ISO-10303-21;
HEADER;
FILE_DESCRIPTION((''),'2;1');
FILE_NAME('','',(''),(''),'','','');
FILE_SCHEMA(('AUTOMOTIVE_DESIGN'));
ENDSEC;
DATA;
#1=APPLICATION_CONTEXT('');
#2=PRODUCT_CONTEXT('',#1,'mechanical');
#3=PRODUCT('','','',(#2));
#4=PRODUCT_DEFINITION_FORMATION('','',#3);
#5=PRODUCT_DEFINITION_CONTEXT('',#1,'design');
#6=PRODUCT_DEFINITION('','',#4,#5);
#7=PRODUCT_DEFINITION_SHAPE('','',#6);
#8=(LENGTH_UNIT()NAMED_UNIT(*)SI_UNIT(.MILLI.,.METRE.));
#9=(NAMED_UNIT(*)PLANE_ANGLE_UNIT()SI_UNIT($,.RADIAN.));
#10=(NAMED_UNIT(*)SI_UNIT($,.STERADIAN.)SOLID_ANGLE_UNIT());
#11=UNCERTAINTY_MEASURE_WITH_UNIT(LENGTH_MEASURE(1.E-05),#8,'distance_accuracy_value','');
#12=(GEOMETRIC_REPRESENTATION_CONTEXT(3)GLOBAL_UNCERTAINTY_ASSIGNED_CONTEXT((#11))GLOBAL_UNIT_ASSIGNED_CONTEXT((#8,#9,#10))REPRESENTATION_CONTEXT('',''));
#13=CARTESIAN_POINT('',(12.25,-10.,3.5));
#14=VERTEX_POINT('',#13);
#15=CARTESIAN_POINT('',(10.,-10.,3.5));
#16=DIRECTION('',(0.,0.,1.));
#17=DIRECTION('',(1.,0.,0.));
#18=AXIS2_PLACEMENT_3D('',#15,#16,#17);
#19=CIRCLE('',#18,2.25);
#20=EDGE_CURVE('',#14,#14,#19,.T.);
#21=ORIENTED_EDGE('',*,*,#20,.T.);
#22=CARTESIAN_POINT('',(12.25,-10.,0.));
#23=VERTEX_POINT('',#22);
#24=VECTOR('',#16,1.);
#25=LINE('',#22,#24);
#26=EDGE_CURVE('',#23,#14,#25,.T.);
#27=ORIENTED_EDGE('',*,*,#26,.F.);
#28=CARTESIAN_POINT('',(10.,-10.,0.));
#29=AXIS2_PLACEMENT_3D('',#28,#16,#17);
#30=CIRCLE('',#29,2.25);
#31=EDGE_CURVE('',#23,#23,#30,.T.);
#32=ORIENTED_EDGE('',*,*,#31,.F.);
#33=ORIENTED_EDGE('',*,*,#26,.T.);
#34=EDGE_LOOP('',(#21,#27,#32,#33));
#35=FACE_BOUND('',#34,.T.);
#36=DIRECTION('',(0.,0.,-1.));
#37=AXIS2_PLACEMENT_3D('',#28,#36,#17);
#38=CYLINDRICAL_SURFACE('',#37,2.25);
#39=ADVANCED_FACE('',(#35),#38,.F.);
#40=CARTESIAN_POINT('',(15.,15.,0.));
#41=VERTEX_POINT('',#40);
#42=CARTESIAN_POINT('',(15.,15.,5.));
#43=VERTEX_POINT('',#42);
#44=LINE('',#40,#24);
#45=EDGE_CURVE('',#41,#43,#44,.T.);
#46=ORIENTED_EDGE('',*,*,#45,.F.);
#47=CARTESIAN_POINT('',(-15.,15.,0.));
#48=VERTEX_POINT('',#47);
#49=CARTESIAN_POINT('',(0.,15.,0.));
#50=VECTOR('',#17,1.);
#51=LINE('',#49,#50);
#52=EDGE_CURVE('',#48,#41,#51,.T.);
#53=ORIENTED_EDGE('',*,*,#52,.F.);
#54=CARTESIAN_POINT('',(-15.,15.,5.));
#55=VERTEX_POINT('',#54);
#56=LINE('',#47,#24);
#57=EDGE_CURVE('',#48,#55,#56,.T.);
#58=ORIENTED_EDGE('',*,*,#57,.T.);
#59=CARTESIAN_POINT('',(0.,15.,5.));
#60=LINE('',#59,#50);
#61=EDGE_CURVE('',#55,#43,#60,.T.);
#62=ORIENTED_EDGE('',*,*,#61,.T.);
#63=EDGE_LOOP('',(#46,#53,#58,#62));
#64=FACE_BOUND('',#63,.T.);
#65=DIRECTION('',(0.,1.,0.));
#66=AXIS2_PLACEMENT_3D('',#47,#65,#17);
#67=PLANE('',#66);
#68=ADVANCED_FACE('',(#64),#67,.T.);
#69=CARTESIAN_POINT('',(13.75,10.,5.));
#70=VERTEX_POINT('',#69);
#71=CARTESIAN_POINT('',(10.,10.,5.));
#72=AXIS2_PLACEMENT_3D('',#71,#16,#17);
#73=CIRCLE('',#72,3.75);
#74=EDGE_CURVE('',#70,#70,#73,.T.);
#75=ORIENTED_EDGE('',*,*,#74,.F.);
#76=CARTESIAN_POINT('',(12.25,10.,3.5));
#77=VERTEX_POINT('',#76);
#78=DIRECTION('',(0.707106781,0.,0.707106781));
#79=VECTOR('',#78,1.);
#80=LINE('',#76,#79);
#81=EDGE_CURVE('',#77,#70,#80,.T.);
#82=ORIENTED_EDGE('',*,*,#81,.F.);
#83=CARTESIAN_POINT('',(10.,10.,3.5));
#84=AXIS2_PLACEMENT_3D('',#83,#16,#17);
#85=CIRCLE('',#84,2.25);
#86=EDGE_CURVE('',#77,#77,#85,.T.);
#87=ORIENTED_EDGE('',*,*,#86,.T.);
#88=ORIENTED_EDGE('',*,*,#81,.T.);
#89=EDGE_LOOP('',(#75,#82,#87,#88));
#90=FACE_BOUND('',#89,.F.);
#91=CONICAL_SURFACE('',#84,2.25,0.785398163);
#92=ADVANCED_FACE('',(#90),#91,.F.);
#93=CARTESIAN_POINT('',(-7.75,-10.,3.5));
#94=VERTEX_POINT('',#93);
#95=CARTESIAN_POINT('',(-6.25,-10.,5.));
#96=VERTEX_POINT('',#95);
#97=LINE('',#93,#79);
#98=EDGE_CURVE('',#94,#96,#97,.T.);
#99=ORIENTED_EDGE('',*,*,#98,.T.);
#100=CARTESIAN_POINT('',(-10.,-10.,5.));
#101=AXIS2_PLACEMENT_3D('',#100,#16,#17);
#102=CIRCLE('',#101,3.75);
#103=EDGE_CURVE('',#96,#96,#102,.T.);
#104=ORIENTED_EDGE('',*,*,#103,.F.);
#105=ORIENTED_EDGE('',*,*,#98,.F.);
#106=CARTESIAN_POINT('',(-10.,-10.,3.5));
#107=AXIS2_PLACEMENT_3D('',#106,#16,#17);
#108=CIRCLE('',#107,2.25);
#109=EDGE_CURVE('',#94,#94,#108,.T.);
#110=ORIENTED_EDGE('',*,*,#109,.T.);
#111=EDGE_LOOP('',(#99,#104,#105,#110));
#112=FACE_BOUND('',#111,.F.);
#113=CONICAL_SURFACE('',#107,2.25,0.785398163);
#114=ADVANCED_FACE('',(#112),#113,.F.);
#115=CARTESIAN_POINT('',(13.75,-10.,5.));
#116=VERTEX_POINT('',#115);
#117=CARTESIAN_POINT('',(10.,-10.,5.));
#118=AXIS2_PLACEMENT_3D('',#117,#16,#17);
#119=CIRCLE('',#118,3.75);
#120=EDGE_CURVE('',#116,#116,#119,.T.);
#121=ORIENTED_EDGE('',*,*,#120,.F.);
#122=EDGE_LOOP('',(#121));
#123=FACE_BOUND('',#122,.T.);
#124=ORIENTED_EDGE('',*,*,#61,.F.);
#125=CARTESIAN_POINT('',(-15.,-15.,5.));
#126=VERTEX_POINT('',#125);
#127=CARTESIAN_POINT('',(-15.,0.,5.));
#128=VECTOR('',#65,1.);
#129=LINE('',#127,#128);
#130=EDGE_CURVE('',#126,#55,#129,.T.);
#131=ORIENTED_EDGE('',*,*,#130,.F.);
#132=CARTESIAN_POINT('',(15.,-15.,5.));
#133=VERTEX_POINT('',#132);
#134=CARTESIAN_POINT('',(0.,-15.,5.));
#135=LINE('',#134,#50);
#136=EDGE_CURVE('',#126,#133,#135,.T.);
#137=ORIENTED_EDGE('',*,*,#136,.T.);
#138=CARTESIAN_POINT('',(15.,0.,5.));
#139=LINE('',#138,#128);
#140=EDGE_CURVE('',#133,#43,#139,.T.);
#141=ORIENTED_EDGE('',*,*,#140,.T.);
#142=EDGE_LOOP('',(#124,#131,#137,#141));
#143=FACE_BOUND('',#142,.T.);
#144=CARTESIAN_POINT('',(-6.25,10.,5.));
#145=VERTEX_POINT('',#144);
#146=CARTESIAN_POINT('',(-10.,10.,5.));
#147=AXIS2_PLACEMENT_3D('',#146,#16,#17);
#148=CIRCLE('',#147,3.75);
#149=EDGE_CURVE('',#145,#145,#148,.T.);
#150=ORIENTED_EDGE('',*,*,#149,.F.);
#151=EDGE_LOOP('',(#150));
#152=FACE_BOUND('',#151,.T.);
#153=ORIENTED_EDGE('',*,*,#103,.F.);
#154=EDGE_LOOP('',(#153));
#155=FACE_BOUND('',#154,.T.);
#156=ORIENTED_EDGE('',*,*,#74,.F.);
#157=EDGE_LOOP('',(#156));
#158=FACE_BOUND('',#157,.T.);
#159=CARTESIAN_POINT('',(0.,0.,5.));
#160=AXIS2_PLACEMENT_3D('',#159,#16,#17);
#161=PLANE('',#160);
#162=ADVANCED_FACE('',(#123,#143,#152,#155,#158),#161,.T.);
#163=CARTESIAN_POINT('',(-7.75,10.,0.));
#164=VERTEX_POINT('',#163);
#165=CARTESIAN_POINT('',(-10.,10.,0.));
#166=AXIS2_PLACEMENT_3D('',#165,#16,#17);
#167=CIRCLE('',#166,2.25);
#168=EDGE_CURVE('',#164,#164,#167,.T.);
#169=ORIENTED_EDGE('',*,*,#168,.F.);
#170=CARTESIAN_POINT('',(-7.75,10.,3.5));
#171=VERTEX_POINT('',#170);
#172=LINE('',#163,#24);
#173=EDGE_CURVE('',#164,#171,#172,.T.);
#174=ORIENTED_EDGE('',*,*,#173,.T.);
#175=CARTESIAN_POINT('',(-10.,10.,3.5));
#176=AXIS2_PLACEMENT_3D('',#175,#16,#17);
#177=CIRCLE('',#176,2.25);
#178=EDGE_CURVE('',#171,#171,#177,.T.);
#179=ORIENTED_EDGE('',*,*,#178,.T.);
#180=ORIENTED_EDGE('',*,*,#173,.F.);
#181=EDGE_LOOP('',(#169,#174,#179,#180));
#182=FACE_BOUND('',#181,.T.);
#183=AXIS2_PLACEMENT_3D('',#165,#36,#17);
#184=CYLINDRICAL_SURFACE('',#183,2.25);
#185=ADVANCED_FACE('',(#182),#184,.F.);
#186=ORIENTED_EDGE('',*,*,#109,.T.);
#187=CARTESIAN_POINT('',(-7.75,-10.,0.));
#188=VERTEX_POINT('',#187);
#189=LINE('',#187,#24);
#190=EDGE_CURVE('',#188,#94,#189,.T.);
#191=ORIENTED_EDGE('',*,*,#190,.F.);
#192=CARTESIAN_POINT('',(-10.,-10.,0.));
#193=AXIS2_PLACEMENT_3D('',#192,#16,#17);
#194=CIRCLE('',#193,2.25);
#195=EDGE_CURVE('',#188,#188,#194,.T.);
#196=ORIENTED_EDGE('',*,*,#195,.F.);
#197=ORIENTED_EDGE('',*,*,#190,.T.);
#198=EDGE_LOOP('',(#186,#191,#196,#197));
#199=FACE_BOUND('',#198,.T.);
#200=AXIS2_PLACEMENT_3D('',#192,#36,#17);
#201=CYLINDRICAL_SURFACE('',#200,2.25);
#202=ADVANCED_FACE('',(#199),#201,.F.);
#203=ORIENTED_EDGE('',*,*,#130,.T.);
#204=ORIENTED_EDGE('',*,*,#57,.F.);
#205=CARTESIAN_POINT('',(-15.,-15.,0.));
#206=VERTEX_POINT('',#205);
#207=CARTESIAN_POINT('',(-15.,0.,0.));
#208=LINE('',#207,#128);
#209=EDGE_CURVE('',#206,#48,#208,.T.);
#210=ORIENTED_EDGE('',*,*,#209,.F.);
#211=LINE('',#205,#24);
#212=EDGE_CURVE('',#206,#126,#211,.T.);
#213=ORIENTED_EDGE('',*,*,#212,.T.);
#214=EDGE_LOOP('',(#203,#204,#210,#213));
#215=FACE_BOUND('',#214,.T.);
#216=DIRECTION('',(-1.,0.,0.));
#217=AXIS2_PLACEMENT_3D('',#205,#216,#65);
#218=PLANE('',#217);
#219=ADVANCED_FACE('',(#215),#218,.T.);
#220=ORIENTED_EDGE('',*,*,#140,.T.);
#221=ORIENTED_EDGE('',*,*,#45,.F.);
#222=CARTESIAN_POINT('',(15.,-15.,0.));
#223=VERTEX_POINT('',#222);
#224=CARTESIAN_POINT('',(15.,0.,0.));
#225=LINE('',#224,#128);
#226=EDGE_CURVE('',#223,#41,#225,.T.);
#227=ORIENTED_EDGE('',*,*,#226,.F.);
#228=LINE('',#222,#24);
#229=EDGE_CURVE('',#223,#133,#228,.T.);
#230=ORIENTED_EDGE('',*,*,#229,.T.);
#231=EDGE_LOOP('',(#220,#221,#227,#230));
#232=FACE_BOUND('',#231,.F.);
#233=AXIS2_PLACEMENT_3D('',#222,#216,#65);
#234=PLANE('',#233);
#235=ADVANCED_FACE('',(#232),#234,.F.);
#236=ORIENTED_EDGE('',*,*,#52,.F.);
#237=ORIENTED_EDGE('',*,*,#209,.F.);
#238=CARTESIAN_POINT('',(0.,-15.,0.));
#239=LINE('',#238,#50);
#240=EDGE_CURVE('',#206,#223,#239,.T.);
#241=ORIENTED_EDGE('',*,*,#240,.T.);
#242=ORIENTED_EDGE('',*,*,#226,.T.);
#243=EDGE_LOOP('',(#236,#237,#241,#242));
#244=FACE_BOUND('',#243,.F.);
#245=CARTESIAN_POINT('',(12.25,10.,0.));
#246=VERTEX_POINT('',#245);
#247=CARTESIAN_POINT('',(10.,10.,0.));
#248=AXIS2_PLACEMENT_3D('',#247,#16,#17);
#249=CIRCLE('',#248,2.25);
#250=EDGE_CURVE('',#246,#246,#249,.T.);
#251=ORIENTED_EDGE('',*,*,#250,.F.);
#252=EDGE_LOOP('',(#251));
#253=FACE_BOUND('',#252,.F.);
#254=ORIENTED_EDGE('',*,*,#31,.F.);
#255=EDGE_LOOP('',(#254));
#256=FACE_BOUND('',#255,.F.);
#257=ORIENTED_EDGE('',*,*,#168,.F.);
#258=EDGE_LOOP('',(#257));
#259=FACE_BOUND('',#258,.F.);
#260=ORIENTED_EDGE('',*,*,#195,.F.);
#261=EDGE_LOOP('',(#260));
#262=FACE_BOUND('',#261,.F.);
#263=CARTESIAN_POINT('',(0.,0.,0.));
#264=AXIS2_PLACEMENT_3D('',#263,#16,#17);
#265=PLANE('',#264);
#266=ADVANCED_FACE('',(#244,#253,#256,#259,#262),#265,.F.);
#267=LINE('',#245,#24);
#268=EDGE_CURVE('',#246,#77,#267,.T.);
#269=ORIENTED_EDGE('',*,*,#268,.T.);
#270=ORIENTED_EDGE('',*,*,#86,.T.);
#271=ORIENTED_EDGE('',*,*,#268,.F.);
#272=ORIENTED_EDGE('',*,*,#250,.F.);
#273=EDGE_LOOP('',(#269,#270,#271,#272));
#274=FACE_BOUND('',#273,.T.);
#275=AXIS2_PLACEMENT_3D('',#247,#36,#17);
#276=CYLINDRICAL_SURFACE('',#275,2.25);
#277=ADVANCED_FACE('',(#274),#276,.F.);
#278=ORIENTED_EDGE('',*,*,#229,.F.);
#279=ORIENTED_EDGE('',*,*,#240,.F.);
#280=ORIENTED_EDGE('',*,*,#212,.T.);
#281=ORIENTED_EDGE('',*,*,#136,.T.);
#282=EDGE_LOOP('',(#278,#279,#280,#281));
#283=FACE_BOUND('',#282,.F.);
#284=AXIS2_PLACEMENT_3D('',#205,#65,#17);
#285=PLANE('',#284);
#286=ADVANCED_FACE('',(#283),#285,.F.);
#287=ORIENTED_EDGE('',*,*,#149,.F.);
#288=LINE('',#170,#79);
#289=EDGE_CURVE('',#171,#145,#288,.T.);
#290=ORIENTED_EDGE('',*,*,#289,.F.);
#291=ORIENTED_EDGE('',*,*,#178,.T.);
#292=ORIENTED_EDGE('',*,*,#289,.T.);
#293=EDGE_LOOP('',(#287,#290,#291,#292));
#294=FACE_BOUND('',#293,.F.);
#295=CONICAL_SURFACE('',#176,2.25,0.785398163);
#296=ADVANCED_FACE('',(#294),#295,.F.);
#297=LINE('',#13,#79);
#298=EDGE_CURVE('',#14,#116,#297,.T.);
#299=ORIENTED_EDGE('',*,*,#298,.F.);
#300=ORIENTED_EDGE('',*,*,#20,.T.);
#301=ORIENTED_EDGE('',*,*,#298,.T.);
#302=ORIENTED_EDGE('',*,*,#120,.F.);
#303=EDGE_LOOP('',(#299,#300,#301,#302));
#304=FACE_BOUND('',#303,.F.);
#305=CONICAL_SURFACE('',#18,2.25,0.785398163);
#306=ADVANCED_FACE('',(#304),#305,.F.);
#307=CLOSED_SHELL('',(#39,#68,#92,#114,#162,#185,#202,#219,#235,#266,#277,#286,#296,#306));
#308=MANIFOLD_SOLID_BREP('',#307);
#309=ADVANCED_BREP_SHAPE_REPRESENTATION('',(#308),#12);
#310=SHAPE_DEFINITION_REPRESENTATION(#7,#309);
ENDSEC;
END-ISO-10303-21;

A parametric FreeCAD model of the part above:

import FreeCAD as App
import Part
import Sketcher

V = App.Vector


def edges_at(feature, points):
    """Names of the edges that pass closest to the given points."""
    edges = feature.Shape.Edges
    near = lambda p: min(range(len(edges)), key=lambda i: edges[i].distToShape(Part.Vertex(*p))[0])
    return sorted({f"Edge{near(p) + 1}" for p in points})


def add_polygon(sketch, points):
    """Adds a closed chain of lines whose ends are joined by coincident constraints."""
    first, n = sketch.GeometryCount, len(points)
    for a, b in zip(points, points[1:] + points[:1]):
        sketch.addGeometry(Part.LineSegment(App.Vector(*a, 0), App.Vector(*b, 0)), False)
    for i in range(n):
        sketch.addConstraint(Sketcher.Constraint("Coincident", first + i, 2, first + (i + 1) % n, 1))

doc = App.newDocument("Part")
params = doc.addObject("Spreadsheet::Sheet", "Params")
for row, (alias, value) in enumerate([
    ("sketch1_diameter", "4.5 mm"),
    ("sketch1_width", "30 mm"),
    ("pad1_length", "5 mm"),
    ("chamfer_size", "1.5 mm"),
], start=1):
    params.set(f"A{row}", alias)
    params.set(f"B{row}", "=" + value)
    params.setAlias(f"B{row}", alias)

body = doc.addObject("PartDesign::Body", "Body")

sketch1 = doc.addObject("Sketcher::SketchObject", "Sketch")
body.addObject(sketch1)
sketch1.AttachmentSupport = (doc.XY_Plane, [""])
sketch1.MapMode = "FlatFace"
add_polygon(sketch1, [(-15, 15), (-15, -15), (15, -15), (15, 15)])
sketch1.addGeometry(Part.Circle(V(-10, -10, 0), V(0, 0, 1), 2.2), False)
sketch1.addGeometry(Part.Circle(V(10, -10, 0), V(0, 0, 1), 2.2), False)
sketch1.addGeometry(Part.Circle(V(-10, 10, 0), V(0, 0, 1), 2.2), False)
sketch1.addGeometry(Part.Circle(V(10, 10, 0), V(0, 0, 1), 2.2), False)
sketch1.addConstraint(Sketcher.Constraint("Vertical", 0))
sketch1.addConstraint(Sketcher.Constraint("Horizontal", 1))
sketch1.addConstraint(Sketcher.Constraint("Vertical", 2))
sketch1.addConstraint(Sketcher.Constraint("Horizontal", 3))
sketch1.addConstraint(Sketcher.Constraint("Equal", 4, 5))
sketch1.addConstraint(Sketcher.Constraint("Equal", 5, 6))
sketch1.addConstraint(Sketcher.Constraint("Equal", 6, 7))
sketch1.addConstraint(Sketcher.Constraint("Symmetric", 5, 3, 6, 3, -1, 1))
sketch1.addConstraint(Sketcher.Constraint("Symmetric", 4, 3, 7, 3, -1, 1))
sketch1.addConstraint(Sketcher.Constraint("Symmetric", 0, 2, 2, 2, -1, 1))
sketch1.addConstraint(Sketcher.Constraint("Symmetric", 4, 3, 5, 3, -2))
sketch1.addConstraint(Sketcher.Constraint("Equal", 3, 0))
sketch1.addConstraint(Sketcher.Constraint("Diameter", 4, 4.5))
sketch1.addConstraint(Sketcher.Constraint("DistanceX", 1, 1, 1, 2, 30.0))
sketch1.addConstraint(Sketcher.Constraint("DistanceX", 4, 3, -1, 1, 10.0))
sketch1.addConstraint(Sketcher.Constraint("DistanceY", 4, 3, -1, 1, 10.0))
sketch1.setExpression("Constraints[16]", "Params.sketch1_diameter")
sketch1.setExpression("Constraints[17]", "Params.sketch1_width")
pad1 = doc.addObject("PartDesign::Pad", "Pad")
body.addObject(pad1)
pad1.Profile = sketch1
pad1.setExpression("Length", "Params.pad1_length")
doc.recompute()

chamfer = doc.addObject("PartDesign::Chamfer", "Chamfer")
body.addObject(chamfer)
chamfer.Base = (pad1, edges_at(pad1, [
    (-12.25, -10, 5),
    (-12.25, 10, 5),
    (7.75, -10, 5),
    (7.75, 10, 5),
]))
chamfer.setExpression("Size", "Params.chamfer_size")

doc.recompute()
